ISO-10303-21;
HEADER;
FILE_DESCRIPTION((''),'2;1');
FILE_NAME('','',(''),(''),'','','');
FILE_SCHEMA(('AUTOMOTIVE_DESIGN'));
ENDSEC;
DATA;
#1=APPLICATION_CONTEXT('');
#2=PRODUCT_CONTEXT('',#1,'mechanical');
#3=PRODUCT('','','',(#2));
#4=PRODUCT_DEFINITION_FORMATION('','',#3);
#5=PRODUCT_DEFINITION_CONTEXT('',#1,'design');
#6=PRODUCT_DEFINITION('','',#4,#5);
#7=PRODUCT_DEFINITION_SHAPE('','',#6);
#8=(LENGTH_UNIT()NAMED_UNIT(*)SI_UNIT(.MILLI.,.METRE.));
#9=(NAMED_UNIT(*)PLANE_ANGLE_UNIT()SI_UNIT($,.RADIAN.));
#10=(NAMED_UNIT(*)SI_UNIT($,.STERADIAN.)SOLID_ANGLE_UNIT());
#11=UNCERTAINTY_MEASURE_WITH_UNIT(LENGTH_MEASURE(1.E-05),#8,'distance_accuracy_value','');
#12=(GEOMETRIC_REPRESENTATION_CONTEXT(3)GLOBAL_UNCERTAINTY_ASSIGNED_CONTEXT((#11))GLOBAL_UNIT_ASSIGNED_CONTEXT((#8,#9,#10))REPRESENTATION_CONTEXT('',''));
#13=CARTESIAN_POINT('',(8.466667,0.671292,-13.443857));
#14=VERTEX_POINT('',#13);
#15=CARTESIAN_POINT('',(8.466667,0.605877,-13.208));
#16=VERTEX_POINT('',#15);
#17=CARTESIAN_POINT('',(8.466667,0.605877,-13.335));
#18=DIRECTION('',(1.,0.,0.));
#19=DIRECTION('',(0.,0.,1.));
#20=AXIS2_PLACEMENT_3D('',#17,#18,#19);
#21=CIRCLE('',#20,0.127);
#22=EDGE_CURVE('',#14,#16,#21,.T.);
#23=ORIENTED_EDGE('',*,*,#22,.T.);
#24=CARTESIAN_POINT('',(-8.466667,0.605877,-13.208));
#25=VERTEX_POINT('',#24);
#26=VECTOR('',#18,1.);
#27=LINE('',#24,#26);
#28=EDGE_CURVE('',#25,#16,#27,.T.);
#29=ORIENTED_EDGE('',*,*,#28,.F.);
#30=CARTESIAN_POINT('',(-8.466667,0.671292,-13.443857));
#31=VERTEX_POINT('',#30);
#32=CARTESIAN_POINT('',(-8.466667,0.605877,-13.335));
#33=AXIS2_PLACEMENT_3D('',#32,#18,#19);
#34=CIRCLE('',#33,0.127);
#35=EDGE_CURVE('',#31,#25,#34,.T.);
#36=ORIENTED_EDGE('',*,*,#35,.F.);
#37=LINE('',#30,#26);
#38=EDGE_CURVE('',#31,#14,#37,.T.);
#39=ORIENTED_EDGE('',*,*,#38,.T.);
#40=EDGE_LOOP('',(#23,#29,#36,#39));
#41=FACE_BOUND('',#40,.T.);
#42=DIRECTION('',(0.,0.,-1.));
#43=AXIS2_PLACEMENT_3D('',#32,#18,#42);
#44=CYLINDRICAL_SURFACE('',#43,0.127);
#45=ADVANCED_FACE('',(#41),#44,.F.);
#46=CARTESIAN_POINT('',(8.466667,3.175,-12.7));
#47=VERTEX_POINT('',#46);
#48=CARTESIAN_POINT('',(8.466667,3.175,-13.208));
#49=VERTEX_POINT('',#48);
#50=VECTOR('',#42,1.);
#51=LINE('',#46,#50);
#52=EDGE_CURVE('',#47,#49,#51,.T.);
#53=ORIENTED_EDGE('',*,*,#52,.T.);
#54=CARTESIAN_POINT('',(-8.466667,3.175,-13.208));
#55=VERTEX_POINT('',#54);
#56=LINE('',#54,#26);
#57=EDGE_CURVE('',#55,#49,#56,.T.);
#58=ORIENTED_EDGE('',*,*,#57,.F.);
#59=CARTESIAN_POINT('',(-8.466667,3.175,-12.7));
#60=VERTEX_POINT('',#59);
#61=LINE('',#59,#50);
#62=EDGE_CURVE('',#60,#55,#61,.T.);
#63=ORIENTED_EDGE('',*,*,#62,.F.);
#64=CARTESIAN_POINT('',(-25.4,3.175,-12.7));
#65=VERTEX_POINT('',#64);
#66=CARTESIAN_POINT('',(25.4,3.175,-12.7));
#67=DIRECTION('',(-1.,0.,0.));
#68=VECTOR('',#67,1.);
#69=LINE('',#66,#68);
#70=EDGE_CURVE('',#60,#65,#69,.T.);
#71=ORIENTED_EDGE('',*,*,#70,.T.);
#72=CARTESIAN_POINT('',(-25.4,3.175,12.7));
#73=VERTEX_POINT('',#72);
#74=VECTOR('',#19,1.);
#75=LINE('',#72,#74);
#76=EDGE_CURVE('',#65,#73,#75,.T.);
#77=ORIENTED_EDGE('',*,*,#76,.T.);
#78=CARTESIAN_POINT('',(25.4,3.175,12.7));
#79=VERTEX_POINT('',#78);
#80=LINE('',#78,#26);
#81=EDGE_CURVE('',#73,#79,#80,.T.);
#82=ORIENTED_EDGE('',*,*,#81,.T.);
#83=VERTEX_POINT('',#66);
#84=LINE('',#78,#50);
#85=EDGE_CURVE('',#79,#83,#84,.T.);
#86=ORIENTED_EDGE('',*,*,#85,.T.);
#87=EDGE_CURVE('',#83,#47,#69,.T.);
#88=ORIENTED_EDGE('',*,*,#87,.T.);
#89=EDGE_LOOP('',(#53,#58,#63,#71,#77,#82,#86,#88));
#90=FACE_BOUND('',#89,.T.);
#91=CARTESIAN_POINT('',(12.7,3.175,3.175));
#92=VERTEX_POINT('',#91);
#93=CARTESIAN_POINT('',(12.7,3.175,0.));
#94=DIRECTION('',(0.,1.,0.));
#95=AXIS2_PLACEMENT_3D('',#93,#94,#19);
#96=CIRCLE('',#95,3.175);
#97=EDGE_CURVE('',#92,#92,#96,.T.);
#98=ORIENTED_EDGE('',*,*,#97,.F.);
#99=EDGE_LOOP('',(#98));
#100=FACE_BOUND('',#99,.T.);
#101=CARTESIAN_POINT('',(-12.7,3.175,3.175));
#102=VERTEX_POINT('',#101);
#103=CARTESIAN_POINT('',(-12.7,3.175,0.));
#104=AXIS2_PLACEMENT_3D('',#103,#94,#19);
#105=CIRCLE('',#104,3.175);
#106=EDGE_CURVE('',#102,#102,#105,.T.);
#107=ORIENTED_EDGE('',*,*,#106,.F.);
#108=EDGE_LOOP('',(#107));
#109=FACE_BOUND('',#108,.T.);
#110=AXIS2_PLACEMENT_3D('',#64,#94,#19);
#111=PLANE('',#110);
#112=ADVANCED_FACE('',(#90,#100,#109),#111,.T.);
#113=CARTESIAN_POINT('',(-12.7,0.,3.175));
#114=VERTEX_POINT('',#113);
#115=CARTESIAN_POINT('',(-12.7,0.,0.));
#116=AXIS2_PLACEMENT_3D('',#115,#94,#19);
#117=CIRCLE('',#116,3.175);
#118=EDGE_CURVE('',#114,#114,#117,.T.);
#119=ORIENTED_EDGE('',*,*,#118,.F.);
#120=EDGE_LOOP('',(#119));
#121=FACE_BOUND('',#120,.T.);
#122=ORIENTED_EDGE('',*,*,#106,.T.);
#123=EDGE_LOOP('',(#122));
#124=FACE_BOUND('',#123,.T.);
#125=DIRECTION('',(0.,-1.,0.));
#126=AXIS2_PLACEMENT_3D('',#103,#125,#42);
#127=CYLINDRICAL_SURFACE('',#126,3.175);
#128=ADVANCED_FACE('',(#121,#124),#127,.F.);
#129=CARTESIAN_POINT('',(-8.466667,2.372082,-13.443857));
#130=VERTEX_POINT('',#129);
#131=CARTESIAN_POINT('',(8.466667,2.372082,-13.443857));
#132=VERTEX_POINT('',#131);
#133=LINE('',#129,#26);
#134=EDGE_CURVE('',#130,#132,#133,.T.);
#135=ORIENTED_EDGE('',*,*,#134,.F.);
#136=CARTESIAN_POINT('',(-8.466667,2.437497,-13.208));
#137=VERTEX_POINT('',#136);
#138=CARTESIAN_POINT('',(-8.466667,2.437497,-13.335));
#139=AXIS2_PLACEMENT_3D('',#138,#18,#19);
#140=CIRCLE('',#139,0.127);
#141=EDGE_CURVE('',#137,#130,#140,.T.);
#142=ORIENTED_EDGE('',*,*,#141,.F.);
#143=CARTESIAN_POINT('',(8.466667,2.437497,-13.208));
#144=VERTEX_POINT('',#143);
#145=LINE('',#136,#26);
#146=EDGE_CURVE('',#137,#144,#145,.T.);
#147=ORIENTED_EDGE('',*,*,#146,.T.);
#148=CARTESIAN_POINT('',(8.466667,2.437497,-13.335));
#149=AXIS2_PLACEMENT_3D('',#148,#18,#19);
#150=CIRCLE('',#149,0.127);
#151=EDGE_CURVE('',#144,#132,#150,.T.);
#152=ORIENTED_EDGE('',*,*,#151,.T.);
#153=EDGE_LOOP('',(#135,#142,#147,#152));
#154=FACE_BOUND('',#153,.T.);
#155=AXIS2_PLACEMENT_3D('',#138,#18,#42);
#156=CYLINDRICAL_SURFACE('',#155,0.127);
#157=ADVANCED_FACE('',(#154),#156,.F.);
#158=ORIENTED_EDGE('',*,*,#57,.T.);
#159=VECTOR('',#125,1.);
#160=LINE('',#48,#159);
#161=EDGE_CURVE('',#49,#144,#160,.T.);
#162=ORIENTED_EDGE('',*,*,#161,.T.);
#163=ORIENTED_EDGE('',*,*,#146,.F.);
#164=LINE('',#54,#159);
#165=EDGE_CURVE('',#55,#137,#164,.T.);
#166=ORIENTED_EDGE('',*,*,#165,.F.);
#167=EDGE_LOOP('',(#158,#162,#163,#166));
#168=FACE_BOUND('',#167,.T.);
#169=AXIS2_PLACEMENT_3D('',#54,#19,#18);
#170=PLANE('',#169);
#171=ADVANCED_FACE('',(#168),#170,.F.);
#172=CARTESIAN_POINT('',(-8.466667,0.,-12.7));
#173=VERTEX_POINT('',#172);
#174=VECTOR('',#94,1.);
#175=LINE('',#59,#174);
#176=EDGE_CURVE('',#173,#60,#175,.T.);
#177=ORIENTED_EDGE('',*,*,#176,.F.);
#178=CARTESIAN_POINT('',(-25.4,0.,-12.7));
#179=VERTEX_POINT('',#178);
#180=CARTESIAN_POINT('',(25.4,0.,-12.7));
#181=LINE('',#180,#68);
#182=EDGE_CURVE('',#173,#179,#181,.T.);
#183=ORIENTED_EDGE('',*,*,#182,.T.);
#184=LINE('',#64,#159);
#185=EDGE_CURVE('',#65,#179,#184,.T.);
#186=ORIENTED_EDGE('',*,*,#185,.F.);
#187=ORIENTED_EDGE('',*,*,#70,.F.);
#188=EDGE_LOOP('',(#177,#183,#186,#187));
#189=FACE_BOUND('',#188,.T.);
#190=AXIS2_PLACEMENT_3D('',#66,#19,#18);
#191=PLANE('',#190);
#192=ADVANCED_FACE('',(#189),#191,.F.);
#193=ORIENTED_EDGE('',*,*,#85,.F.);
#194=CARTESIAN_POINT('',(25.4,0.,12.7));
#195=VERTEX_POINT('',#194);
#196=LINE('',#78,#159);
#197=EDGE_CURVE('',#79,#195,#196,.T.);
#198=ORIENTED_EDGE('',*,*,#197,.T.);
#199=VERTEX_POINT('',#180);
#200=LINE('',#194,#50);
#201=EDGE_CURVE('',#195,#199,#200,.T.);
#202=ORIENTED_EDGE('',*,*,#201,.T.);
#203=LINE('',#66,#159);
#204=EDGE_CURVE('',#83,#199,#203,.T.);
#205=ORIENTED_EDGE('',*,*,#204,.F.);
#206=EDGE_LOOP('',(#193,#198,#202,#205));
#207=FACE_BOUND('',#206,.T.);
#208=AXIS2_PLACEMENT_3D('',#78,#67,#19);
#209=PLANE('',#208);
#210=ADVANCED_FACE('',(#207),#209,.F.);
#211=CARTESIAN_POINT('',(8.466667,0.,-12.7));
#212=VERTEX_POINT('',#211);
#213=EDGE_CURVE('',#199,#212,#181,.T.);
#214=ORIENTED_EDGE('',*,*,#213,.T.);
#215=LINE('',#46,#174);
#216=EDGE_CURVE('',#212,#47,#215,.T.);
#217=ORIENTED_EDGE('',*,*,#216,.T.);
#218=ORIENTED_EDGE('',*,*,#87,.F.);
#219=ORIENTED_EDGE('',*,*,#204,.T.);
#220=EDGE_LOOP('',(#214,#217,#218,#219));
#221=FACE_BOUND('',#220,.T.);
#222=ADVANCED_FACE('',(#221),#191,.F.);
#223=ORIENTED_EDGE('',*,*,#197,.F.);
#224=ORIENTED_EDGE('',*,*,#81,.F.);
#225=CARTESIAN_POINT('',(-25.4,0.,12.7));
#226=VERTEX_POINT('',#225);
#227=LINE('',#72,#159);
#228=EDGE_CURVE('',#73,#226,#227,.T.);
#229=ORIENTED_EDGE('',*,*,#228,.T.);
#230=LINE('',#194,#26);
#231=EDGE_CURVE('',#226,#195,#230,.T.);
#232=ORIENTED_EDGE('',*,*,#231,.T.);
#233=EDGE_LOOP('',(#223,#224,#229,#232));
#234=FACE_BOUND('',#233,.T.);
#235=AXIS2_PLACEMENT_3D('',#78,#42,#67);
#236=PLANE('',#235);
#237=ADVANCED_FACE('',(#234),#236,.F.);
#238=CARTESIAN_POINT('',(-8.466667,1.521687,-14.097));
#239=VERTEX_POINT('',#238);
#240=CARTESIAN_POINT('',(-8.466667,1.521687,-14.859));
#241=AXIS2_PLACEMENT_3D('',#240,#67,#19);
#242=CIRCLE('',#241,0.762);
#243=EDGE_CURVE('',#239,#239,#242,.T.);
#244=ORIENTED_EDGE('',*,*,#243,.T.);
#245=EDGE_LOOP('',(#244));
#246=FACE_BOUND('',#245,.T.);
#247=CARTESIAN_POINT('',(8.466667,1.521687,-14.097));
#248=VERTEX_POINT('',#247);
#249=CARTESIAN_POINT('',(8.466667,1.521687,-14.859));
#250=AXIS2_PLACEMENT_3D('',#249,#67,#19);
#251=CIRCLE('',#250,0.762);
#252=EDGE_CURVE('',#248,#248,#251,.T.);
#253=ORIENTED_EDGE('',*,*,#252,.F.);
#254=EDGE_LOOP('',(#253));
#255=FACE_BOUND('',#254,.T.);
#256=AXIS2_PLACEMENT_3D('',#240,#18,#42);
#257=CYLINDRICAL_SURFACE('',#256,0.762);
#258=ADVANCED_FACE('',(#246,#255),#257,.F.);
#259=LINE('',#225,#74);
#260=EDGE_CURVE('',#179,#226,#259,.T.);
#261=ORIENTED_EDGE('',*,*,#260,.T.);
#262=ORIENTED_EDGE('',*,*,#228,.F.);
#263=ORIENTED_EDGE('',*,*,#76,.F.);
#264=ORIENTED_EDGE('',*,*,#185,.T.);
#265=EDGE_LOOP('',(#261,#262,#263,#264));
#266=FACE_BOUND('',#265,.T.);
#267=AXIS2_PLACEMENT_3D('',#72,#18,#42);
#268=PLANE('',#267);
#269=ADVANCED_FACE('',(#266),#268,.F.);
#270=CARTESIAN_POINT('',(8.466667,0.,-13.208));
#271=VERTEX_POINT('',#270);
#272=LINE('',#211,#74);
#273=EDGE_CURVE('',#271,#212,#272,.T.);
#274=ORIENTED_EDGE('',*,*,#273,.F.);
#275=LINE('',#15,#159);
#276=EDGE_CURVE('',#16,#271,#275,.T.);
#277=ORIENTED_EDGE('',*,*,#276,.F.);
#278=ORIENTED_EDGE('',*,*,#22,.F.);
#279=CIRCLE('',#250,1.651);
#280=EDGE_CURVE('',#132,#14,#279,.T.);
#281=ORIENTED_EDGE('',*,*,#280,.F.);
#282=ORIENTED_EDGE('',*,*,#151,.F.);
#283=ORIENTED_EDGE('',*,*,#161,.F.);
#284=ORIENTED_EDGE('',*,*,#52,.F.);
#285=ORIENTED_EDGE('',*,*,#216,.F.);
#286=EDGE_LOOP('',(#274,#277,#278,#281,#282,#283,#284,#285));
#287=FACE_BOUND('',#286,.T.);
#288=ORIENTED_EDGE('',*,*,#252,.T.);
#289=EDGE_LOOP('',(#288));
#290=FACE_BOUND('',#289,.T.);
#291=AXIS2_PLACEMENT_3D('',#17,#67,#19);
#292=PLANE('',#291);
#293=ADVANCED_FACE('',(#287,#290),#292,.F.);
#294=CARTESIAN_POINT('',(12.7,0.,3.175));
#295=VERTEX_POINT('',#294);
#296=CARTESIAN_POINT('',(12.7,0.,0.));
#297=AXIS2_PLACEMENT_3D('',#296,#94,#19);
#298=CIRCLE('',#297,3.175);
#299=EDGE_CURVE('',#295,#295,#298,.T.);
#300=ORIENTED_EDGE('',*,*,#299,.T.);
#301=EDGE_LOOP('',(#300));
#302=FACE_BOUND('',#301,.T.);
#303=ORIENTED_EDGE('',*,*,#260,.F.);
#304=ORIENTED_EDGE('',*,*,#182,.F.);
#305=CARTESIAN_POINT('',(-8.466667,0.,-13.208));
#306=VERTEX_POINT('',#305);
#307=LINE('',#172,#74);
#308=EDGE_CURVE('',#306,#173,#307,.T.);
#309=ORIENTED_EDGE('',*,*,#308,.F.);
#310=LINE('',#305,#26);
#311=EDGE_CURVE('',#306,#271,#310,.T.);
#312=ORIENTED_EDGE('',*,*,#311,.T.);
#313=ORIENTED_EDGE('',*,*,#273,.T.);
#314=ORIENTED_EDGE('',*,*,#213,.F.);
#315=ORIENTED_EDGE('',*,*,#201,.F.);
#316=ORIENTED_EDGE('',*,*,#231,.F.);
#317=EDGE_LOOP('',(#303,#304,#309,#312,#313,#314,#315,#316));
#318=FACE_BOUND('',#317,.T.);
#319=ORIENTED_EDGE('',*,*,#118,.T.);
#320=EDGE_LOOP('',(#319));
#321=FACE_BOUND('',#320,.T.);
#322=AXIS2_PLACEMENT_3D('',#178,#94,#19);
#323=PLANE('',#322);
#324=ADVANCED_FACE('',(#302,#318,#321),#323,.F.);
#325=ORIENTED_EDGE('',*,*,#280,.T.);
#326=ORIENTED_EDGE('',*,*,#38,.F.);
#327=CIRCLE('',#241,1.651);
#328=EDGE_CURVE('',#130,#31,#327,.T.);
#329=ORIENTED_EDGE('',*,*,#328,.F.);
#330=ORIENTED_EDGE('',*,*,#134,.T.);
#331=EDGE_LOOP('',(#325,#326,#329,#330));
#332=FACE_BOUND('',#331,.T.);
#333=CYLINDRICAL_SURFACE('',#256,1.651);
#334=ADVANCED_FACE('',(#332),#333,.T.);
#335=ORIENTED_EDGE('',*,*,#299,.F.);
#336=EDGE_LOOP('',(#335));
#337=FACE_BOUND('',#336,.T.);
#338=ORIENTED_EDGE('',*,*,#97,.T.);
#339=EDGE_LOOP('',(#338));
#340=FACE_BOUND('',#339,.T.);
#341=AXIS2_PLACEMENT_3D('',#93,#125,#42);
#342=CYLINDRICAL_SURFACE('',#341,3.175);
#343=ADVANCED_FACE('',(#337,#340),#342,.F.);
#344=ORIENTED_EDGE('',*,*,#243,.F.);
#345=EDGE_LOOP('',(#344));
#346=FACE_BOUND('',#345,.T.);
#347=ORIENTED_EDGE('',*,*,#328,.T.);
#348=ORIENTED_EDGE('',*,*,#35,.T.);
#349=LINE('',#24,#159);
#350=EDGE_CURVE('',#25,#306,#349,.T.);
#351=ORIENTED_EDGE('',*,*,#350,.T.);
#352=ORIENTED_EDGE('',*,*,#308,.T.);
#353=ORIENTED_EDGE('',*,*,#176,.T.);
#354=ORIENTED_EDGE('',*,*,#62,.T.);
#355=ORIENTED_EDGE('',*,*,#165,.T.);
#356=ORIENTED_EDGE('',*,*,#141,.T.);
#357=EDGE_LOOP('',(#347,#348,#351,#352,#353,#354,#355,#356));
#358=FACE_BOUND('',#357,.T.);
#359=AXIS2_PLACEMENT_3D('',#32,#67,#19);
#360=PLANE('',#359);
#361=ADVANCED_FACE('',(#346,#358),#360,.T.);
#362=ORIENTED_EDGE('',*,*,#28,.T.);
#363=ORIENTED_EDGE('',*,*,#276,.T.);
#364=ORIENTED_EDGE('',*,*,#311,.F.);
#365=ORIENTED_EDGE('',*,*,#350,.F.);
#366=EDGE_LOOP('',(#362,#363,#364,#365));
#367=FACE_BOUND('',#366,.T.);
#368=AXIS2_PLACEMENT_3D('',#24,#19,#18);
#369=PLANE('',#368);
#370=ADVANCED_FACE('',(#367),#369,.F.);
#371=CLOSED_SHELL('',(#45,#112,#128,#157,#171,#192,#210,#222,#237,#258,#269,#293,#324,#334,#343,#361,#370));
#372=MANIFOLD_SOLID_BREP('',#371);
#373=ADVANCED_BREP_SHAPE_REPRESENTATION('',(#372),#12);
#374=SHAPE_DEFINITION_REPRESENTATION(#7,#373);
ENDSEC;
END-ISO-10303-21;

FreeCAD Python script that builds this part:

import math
import FreeCAD as App
import Part
import Sketcher

V = App.Vector
Q = App.Units.Quantity

doc = App.newDocument("Part")
params = doc.addObject("Spreadsheet::Sheet", "Params")
for row, (alias, value) in enumerate([
    ("sketch1_diameter", "0.25 in"),
    ("sketch1_width", "2 in"),
    ("sketch1_height", "1 in"),
    ("pad1_length", "0.125 in"),
    ("sketch2_diameter", "0.06 in"),
    ("sketch2_radius", "0.005 in"),
    ("sketch2_radius2", "0.065 in"),
    ("sketch2_height", "0.02 in"),
    ("sketch2_width", "0.125 in"),
    ("pad2_length", "16.933333 mm"),
], start=1):
    params.set(f"A{row}", alias)
    params.set(f"B{row}", "=" + value)
    params.setAlias(f"B{row}", alias)

body = doc.addObject("PartDesign::Body", "Body")

sketch1 = body.newObject("Sketcher::SketchObject", "Sketch")
sketch1.AttachmentSupport = (doc.getObject("XZ_Plane"), [""])
sketch1.MapMode = "FlatFace"
sketch1.addGeometry([
    Part.LineSegment(V(-25.4, -12.7, 0), V(-25.4, 12.7, 0)),
    Part.LineSegment(V(-25.4, 12.7, 0), V(25.4, 12.7, 0)),
    Part.LineSegment(V(25.4, 12.7, 0), V(25.4, -12.7, 0)),
    Part.LineSegment(V(25.4, -12.7, 0), V(-25.4, -12.7, 0)),
    Part.Circle(V(-12.7, 0, 0), V(0, 0, 1), 3.2),
    Part.Circle(V(12.7, 0, 0), V(0, 0, 1), 3.2),
], False)
sketch1.addConstraint([
    Sketcher.Constraint("Coincident", 0, 2, 1, 1),
    Sketcher.Constraint("Coincident", 1, 2, 2, 1),
    Sketcher.Constraint("Coincident", 2, 2, 3, 1),
    Sketcher.Constraint("Coincident", 3, 2, 0, 1),
    Sketcher.Constraint("Vertical", 0),
    Sketcher.Constraint("Horizontal", 1),
    Sketcher.Constraint("Vertical", 2),
    Sketcher.Constraint("Horizontal", 3),
    Sketcher.Constraint("Equal", 4, 5),
    Sketcher.Constraint("Symmetric", 4, 3, 5, 3, -1, 1),
    Sketcher.Constraint("Symmetric", 0, 2, 2, 2, -1, 1),
    Sketcher.Constraint("PointOnObject", 4, 3, -1),
    Sketcher.Constraint("Diameter", 4, Q("0.25 in")),
    Sketcher.Constraint("DistanceX", 1, 1, 1, 2, Q("2 in")),
    Sketcher.Constraint("DistanceY", 0, 1, 0, 2, Q("1 in")),
    Sketcher.Constraint("DistanceX", 4, 3, 5, 3, Q("1 in")),
])
sketch1.setExpression("Constraints[12]", "Params.sketch1_diameter")
sketch1.setExpression("Constraints[13]", "Params.sketch1_width")
sketch1.setExpression("Constraints[14]", "Params.sketch1_height")
pad1 = body.newObject("PartDesign::Pad", "Pad")
pad1.Profile = sketch1
pad1.setExpression("Length", "Params.pad1_length")
pad1.Reversed = True

sketch2 = body.newObject("Sketcher::SketchObject", "Sketch001")
sketch2.AttachmentSupport = (doc.getObject("YZ_Plane"), [""])
sketch2.MapMode = "FlatFace"
sketch2.addGeometry([
    Part.LineSegment(V(3.17, -12.7, 0), V(3.17, -13.21, 0)),
    Part.LineSegment(V(3.17, -13.21, 0), V(2.44, -13.21, 0)),
    Part.ArcOfCircle(Part.Circle(V(2.44, -13.34, 0), V(0, 0, 1), 0.13), math.radians(90), math.radians(239)),
    Part.ArcOfCircle(Part.Circle(V(1.52, -14.86, 0), V(0, 0, 1), 1.65), math.radians(121), math.radians(419)),
    Part.ArcOfCircle(Part.Circle(V(0.61, -13.34, 0), V(0, 0, 1), 0.13), math.radians(-59), math.radians(90)),
    Part.LineSegment(V(0.61, -13.21, 0), V(0, -13.21, 0)),
    Part.LineSegment(V(0, -13.21, 0), V(0, -12.7, 0)),
    Part.LineSegment(V(0, -12.7, 0), V(3.17, -12.7, 0)),
    Part.Circle(V(1.52, -14.86, 0), V(0, 0, 1), 0.76),
], False)
sketch2.addConstraint([
    Sketcher.Constraint("Coincident", 0, 2, 1, 1),
    Sketcher.Constraint("Tangent", 1, 2, 2, 1),
    Sketcher.Constraint("Tangent", 2, 2, 3, 2),
    Sketcher.Constraint("Tangent", 3, 1, 4, 1),
    Sketcher.Constraint("Tangent", 4, 2, 5, 1),
    Sketcher.Constraint("Coincident", 5, 2, 6, 1),
    Sketcher.Constraint("Coincident", 6, 2, 7, 1),
    Sketcher.Constraint("Coincident", 7, 2, 0, 1),
    Sketcher.Constraint("Vertical", 0),
    Sketcher.Constraint("Horizontal", 1),
    Sketcher.Constraint("Horizontal", 5),
    Sketcher.Constraint("Vertical", 6),
    Sketcher.Constraint("Horizontal", 7),
    Sketcher.Constraint("Coincident", 8, 3, 3, 3),
    Sketcher.Constraint("Equal", 2, 4),
    Sketcher.Constraint("PointOnObject", 5, 2, -2),
    Sketcher.Constraint("Horizontal", 2, 3, 4, 3),
    Sketcher.Constraint("Diameter", 8, Q("0.06 in")),
    Sketcher.Constraint("Radius", 2, Q("0.005 in")),
    Sketcher.Constraint("Radius", 3, Q("0.065 in")),
    Sketcher.Constraint("DistanceY", 0, 2, 0, 1, Q("0.02 in")),
    Sketcher.Constraint("DistanceY", 6, 2, -1, 1, Q("0.5 in")),
    Sketcher.Constraint("DistanceX", 7, 1, 7, 2, Q("0.125 in")),
    Sketcher.Constraint("DistanceY", 3, 3, 2, 3, Q("0.06 in")),
    Sketcher.Constraint("DistanceX", 1, 2, 1, 1, 0.737503),
])
sketch2.setExpression("Constraints[17]", "Params.sketch2_diameter")
sketch2.setExpression("Constraints[18]", "Params.sketch2_radius")
sketch2.setExpression("Constraints[19]", "Params.sketch2_radius2")
sketch2.setExpression("Constraints[20]", "Params.sketch2_height")
sketch2.setExpression("Constraints[22]", "Params.sketch2_width")
pad2 = body.newObject("PartDesign::Pad", "Pad001")
pad2.Profile = sketch2
pad2.setExpression("Length", "Params.pad2_length")
pad2.Midplane = True

doc.recompute()
